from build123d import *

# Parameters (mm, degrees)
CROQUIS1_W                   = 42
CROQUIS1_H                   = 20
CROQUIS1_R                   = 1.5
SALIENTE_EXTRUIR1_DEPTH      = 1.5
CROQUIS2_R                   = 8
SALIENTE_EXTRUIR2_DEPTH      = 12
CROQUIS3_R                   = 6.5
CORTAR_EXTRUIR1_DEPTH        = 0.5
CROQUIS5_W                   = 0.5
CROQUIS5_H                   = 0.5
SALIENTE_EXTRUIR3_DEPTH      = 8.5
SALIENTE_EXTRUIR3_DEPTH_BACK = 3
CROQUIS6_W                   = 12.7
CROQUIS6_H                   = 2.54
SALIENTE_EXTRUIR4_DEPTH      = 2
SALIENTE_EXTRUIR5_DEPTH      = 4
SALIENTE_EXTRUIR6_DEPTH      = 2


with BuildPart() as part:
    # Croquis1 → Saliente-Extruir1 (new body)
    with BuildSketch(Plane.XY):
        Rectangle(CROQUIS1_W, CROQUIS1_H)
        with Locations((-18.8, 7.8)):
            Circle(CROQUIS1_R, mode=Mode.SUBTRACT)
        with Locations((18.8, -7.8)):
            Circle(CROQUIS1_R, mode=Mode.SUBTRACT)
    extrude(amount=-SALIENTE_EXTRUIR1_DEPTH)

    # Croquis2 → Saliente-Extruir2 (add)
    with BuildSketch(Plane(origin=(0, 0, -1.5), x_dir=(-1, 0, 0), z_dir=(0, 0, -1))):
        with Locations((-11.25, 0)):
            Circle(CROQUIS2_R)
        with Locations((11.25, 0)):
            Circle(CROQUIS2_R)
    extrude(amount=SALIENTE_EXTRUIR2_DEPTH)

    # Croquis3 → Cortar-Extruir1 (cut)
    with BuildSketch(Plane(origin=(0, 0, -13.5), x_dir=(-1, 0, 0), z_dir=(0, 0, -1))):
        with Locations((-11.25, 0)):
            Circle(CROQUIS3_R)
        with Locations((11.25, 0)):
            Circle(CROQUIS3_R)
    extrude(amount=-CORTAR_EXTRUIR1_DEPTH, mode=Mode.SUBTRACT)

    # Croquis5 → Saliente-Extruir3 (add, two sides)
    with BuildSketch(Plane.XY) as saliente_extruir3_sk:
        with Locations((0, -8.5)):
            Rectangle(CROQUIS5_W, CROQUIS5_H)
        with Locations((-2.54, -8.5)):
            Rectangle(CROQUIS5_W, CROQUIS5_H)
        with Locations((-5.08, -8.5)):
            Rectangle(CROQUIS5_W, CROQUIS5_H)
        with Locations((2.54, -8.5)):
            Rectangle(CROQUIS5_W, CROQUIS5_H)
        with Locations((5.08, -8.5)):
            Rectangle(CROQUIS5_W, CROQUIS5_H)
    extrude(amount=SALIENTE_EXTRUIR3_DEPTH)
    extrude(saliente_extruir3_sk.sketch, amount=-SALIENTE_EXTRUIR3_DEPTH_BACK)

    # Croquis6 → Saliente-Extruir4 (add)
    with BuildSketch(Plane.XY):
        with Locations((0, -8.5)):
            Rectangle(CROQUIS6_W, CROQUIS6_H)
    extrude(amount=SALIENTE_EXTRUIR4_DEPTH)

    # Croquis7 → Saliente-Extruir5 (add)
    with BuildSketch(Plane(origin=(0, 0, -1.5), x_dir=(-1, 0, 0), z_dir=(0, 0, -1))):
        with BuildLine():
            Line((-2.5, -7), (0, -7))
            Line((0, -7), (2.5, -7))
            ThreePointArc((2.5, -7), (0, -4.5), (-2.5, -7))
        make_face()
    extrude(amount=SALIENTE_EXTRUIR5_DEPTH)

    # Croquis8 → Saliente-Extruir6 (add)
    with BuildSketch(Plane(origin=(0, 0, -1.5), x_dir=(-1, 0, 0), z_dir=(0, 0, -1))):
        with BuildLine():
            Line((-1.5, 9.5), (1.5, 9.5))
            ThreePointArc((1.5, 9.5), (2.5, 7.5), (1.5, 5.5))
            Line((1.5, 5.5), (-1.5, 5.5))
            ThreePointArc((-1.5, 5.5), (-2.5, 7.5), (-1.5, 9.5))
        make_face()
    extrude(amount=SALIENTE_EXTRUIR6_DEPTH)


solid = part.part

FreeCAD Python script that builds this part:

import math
import FreeCAD as App
import Part
import Sketcher
from FreeCAD import Vector
Q = App.Units.Quantity

doc = App.newDocument("Part")
params = doc.addObject("Spreadsheet::Sheet", "Params")
for row, (alias, value) in enumerate([
    ("sketch1_diameter", "3 mm"),
    ("sketch1_width", "42 mm"),
    ("sketch1_height", "20 mm"),
    ("pad1_length", "1.5 mm"),
    ("sketch2_diameter", "16 mm"),
    ("pad2_length", "12 mm"),
    ("sketch3_diameter", "13 mm"),
    ("pocket1_length", "0.5 mm"),
    ("sketch4_width", "0.5 mm"),
    ("pad3_length", "8.5 mm"),
    ("pad3_length2", "3 mm"),
    ("sketch5_width", "12.7 mm"),
    ("sketch5_height", "2.54 mm"),
    ("pad4_length", "2 mm"),
    ("sketch6_radius", "2.5 mm"),
    ("pad5_length", "4 mm"),
    ("sketch7_radius", "2.5 mm"),
    ("sketch7_width", "3 mm"),
    ("pad6_length", "2 mm"),
], start=1):
    params.set(f"A{row}", alias)
    params.set(f"B{row}", "=" + value)
    params.setAlias(f"B{row}", alias)

body = doc.addObject("PartDesign::Body", "Body")

# Sketch on XY plane
sketch1 = body.newObject("Sketcher::SketchObject", "Sketch")
sketch1.AttachmentSupport = (doc.getObject("XY_Plane"), [""])
sketch1.MapMode = "FlatFace"
sketch1.addGeometry([
    Part.LineSegment(Vector(-21, 10, 0), Vector(-21, -10, 0)),  # 0
    Part.LineSegment(Vector(-21, -10, 0), Vector(21, -10, 0)),  # 1
    Part.LineSegment(Vector(21, -10, 0), Vector(21, 10, 0)),  # 2
    Part.LineSegment(Vector(21, 10, 0), Vector(-21, 10, 0)),  # 3
    Part.Circle(Vector(18.8, -7.8, 0), Vector(0, 0, 1), 1.5),  # 4
    Part.Circle(Vector(-18.8, 7.8, 0), Vector(0, 0, 1), 1.5),  # 5
], False)
sketch1.addConstraint([
    Sketcher.Constraint("Coincident", 0, 2, 1, 1),
    Sketcher.Constraint("Coincident", 1, 2, 2, 1),
    Sketcher.Constraint("Coincident", 2, 2, 3, 1),
    Sketcher.Constraint("Coincident", 3, 2, 0, 1),
    Sketcher.Constraint("Vertical", 0),
    Sketcher.Constraint("Horizontal", 1),
    Sketcher.Constraint("Vertical", 2),
    Sketcher.Constraint("Horizontal", 3),
    Sketcher.Constraint("Equal", 4, 5),
    Sketcher.Constraint("Symmetric", 4, 3, 5, 3, -1, 1),
    Sketcher.Constraint("Symmetric", 0, 2, 2, 2, -1, 1),
    Sketcher.Constraint("Diameter", 4, Q("3 mm")),
    Sketcher.Constraint("DistanceX", 1, 1, 1, 2, Q("42 mm")),
    Sketcher.Constraint("DistanceY", 0, 2, 0, 1, Q("20 mm")),
    Sketcher.Constraint("DistanceX", -1, 1, 4, 3, Q("18.8 mm")),
    Sketcher.Constraint("DistanceY", 4, 3, -1, 1, Q("7.8 mm")),
])
sketch1.setExpression("Constraints[11]", "Params.sketch1_diameter")
sketch1.setExpression("Constraints[12]", "Params.sketch1_width")
sketch1.setExpression("Constraints[13]", "Params.sketch1_height")
pad1 = body.newObject("PartDesign::Pad", "Pad")
pad1.Profile = sketch1
pad1.setExpression("Length", "Params.pad1_length")
pad1.Reversed = True

# Sketch on XY plane
sketch2 = body.newObject("Sketcher::SketchObject", "Sketch001")
sketch2.AttachmentSupport = (doc.getObject("XY_Plane"), [""])
sketch2.MapMode = "FlatFace"
sketch2.AttachmentOffset = App.Placement(Vector(0, 0, -1.5), App.Rotation())
sketch2.addGeometry([
    Part.Circle(Vector(11.25, 0, 0), Vector(0, 0, 1), 8),
    Part.Circle(Vector(-11.25, 0, 0), Vector(0, 0, 1), 8),
], False)
sketch2.addConstraint([
    Sketcher.Constraint("Equal", 0, 1),
    Sketcher.Constraint("Symmetric", 0, 3, 1, 3, -1, 1),
    Sketcher.Constraint("PointOnObject", 0, 3, -1),
    Sketcher.Constraint("Diameter", 0, Q("16 mm")),
    Sketcher.Constraint("DistanceX", 1, 3, 0, 3, Q("22.5 mm")),
])
sketch2.setExpression("Constraints[3]", "Params.sketch2_diameter")
pad2 = body.newObject("PartDesign::Pad", "Pad001")
pad2.Profile = sketch2
pad2.setExpression("Length", "Params.pad2_length")
pad2.Reversed = True

# Sketch on XY plane
sketch3 = body.newObject("Sketcher::SketchObject", "Sketch002")
sketch3.AttachmentSupport = (doc.getObject("XY_Plane"), [""])
sketch3.MapMode = "FlatFace"
sketch3.AttachmentOffset = App.Placement(Vector(0, 0, -13.5), App.Rotation())
sketch3.addGeometry([
    Part.Circle(Vector(11.25, 0, 0), Vector(0, 0, 1), 6.5),
    Part.Circle(Vector(-11.25, 0, 0), Vector(0, 0, 1), 6.5),
], False)
sketch3.addConstraint([
    Sketcher.Constraint("Equal", 0, 1),
    Sketcher.Constraint("Symmetric", 0, 3, 1, 3, -1, 1),
    Sketcher.Constraint("PointOnObject", 0, 3, -1),
    Sketcher.Constraint("Diameter", 0, Q("13 mm")),
    Sketcher.Constraint("DistanceX", 1, 3, 0, 3, Q("22.5 mm")),
])
sketch3.setExpression("Constraints[3]", "Params.sketch3_diameter")
pocket1 = body.newObject("PartDesign::Pocket", "Pocket")
pocket1.Profile = sketch3
pocket1.setExpression("Length", "Params.pocket1_length")
pocket1.Reversed = True

# Sketch on XY plane
sketch4 = body.newObject("Sketcher::SketchObject", "Sketch003")
sketch4.AttachmentSupport = (doc.getObject("XY_Plane"), [""])
sketch4.MapMode = "FlatFace"
sketch4.addGeometry([
    Part.LineSegment(Vector(-0.25, -8.25, 0), Vector(-0.25, -8.75, 0)),  # 0
    Part.LineSegment(Vector(-0.25, -8.75, 0), Vector(0.25, -8.75, 0)),  # 1
    Part.LineSegment(Vector(0.25, -8.75, 0), Vector(0.25, -8.25, 0)),  # 2
    Part.LineSegment(Vector(0.25, -8.25, 0), Vector(-0.25, -8.25, 0)),  # 3
    Part.LineSegment(Vector(-2.79, -8.25, 0), Vector(-2.79, -8.75, 0)),  # 4
    Part.LineSegment(Vector(-2.79, -8.75, 0), Vector(-2.29, -8.75, 0)),  # 5
    Part.LineSegment(Vector(-2.29, -8.75, 0), Vector(-2.29, -8.25, 0)),  # 6
    Part.LineSegment(Vector(-2.29, -8.25, 0), Vector(-2.79, -8.25, 0)),  # 7
    Part.LineSegment(Vector(-5.33, -8.25, 0), Vector(-5.33, -8.75, 0)),  # 8
    Part.LineSegment(Vector(-5.33, -8.75, 0), Vector(-4.83, -8.75, 0)),  # 9
    Part.LineSegment(Vector(-4.83, -8.75, 0), Vector(-4.83, -8.25, 0)),  # 10
    Part.LineSegment(Vector(-4.83, -8.25, 0), Vector(-5.33, -8.25, 0)),  # 11
    Part.LineSegment(Vector(2.29, -8.25, 0), Vector(2.29, -8.75, 0)),  # 12
    Part.LineSegment(Vector(2.29, -8.75, 0), Vector(2.79, -8.75, 0)),  # 13
    Part.LineSegment(Vector(2.79, -8.75, 0), Vector(2.79, -8.25, 0)),  # 14
    Part.LineSegment(Vector(2.79, -8.25, 0), Vector(2.29, -8.25, 0)),  # 15
    Part.LineSegment(Vector(4.83, -8.25, 0), Vector(4.83, -8.75, 0)),  # 16
    Part.LineSegment(Vector(4.83, -8.75, 0), Vector(5.33, -8.75, 0)),  # 17
    Part.LineSegment(Vector(5.33, -8.75, 0), Vector(5.33, -8.25, 0)),  # 18
    Part.LineSegment(Vector(5.33, -8.25, 0), Vector(4.83, -8.25, 0)),  # 19
], False)
sketch4.addConstraint([
    Sketcher.Constraint("Coincident", 0, 2, 1, 1),
    Sketcher.Constraint("Coincident", 1, 2, 2, 1),
    Sketcher.Constraint("Coincident", 2, 2, 3, 1),
    Sketcher.Constraint("Coincident", 3, 2, 0, 1),
    Sketcher.Constraint("Coincident", 4, 2, 5, 1),
    Sketcher.Constraint("Coincident", 5, 2, 6, 1),
    Sketcher.Constraint("Coincident", 6, 2, 7, 1),
    Sketcher.Constraint("Coincident", 7, 2, 4, 1),
    Sketcher.Constraint("Coincident", 8, 2, 9, 1),
    Sketcher.Constraint("Coincident", 9, 2, 10, 1),
    Sketcher.Constraint("Coincident", 10, 2, 11, 1),
    Sketcher.Constraint("Coincident", 11, 2, 8, 1),
    Sketcher.Constraint("Coincident", 12, 2, 13, 1),
    Sketcher.Constraint("Coincident", 13, 2, 14, 1),
    Sketcher.Constraint("Coincident", 14, 2, 15, 1),
    Sketcher.Constraint("Coincident", 15, 2, 12, 1),
    Sketcher.Constraint("Coincident", 16, 2, 17, 1),
    Sketcher.Constraint("Coincident", 17, 2, 18, 1),
    Sketcher.Constraint("Coincident", 18, 2, 19, 1),
    Sketcher.Constraint("Coincident", 19, 2, 16, 1),
    Sketcher.Constraint("Vertical", 0),
    Sketcher.Constraint("Horizontal", 1),
    Sketcher.Constraint("Vertical", 2),
    Sketcher.Constraint("Horizontal", 3),
    Sketcher.Constraint("Vertical", 4),
    Sketcher.Constraint("Horizontal", 5),
    Sketcher.Constraint("Vertical", 6),
    Sketcher.Constraint("Horizontal", 7),
    Sketcher.Constraint("Vertical", 8),
    Sketcher.Constraint("Horizontal", 9),
    Sketcher.Constraint("Vertical", 10),
    Sketcher.Constraint("Horizontal", 11),
    Sketcher.Constraint("Vertical", 12),
    Sketcher.Constraint("Horizontal", 13),
    Sketcher.Constraint("Vertical", 14),
    Sketcher.Constraint("Horizontal", 15),
    Sketcher.Constraint("Vertical", 16),
    Sketcher.Constraint("Horizontal", 17),
    Sketcher.Constraint("Vertical", 18),
    Sketcher.Constraint("Horizontal", 19),
    Sketcher.Constraint("Symmetric", 5, 2, 12, 2, -2),
    Sketcher.Constraint("Symmetric", 7, 2, 14, 2, -2),
    Sketcher.Constraint("Symmetric", 9, 2, 16, 2, -2),
    Sketcher.Constraint("Symmetric", 11, 2, 18, 2, -2),
    Sketcher.Constraint("Horizontal", 1, 2, 4, 2),
    Sketcher.Constraint("Horizontal", 3, 2, 6, 2),
    Sketcher.Constraint("Horizontal", 5, 2, 8, 2),
    Sketcher.Constraint("Horizontal", 7, 2, 10, 2),
    Sketcher.Constraint("Equal", 3, 5),
    Sketcher.Constraint("Equal", 7, 9),
    Sketcher.Constraint("Equal", 19, 0),
    Sketcher.Constraint("DistanceX", 1, 1, 1, 2, Q("0.5 mm")),
    Sketcher.Constraint("DistanceX", 0, 2, -1, 1, Q("0.25 mm")),
    Sketcher.Constraint("DistanceY", 0, 2, -1, 1, Q("8.75 mm")),
    Sketcher.Constraint("DistanceX", 4, 2, -1, 1, Q("2.79 mm")),
    Sketcher.Constraint("DistanceX", 8, 2, -1, 1, Q("5.33 mm")),
])
sketch4.setExpression("Constraints[51]", "Params.sketch4_width")
pad3 = body.newObject("PartDesign::Pad", "Pad002")
pad3.Profile = sketch4
pad3.Type = "TwoLengths"
pad3.setExpression("Length", "Params.pad3_length")
pad3.setExpression("Length2", "Params.pad3_length2")

# Sketch on XY plane
sketch5 = body.newObject("Sketcher::SketchObject", "Sketch004")
sketch5.AttachmentSupport = (doc.getObject("XY_Plane"), [""])
sketch5.MapMode = "FlatFace"
sketch5.addGeometry([
    Part.LineSegment(Vector(-6.35, -7.23, 0), Vector(-6.35, -9.77, 0)),
    Part.LineSegment(Vector(-6.35, -9.77, 0), Vector(6.35, -9.77, 0)),
    Part.LineSegment(Vector(6.35, -9.77, 0), Vector(6.35, -7.23, 0)),
    Part.LineSegment(Vector(6.35, -7.23, 0), Vector(-6.35, -7.23, 0)),
], False)
sketch5.addConstraint([
    Sketcher.Constraint("Coincident", 0, 2, 1, 1),
    Sketcher.Constraint("Coincident", 1, 2, 2, 1),
    Sketcher.Constraint("Coincident", 2, 2, 3, 1),
    Sketcher.Constraint("Coincident", 3, 2, 0, 1),
    Sketcher.Constraint("Vertical", 0),
    Sketcher.Constraint("Horizontal", 1),
    Sketcher.Constraint("Vertical", 2),
    Sketcher.Constraint("Horizontal", 3),
    Sketcher.Constraint("DistanceX", 1, 1, 1, 2, Q("12.7 mm")),
    Sketcher.Constraint("DistanceY", 0, 2, 0, 1, Q("2.54 mm")),
    Sketcher.Constraint("DistanceX", 0, 2, -1, 1, Q("6.35 mm")),
    Sketcher.Constraint("DistanceY", 0, 2, -1, 1, Q("9.77 mm")),
])
sketch5.setExpression("Constraints[8]", "Params.sketch5_width")
sketch5.setExpression("Constraints[9]", "Params.sketch5_height")
pad4 = body.newObject("PartDesign::Pad", "Pad003")
pad4.Profile = sketch5
pad4.setExpression("Length", "Params.pad4_length")

# Sketch on XY plane
sketch6 = body.newObject("Sketcher::SketchObject", "Sketch005")
sketch6.AttachmentSupport = (doc.getObject("XY_Plane"), [""])
sketch6.MapMode = "FlatFace"
sketch6.AttachmentOffset = App.Placement(Vector(0, 0, -1.5), App.Rotation())
sketch6.addGeometry([
    Part.LineSegment(Vector(2.5, -7, 0), Vector(-2.5, -7, 0)),
    Part.ArcOfCircle(Part.Circle(Vector(0, -7, 0), Vector(0, 0, 1), 2.5), math.radians(0), math.radians(180)),
], False)
sketch6.addConstraint([
    Sketcher.Constraint("Coincident", 0, 1, 1, 1),
    Sketcher.Constraint("Coincident", 1, 2, 0, 2),
    Sketcher.Constraint("Horizontal", 0),
    Sketcher.Constraint("PointOnObject", 1, 3, -2),
    Sketcher.Constraint("Horizontal", 1, 3, 0, 1),
    Sketcher.Constraint("Radius", 1, Q("2.5 mm")),
    Sketcher.Constraint("DistanceY", 1, 3, -1, 1, Q("7 mm")),
])
sketch6.setExpression("Constraints[5]", "Params.sketch6_radius")
pad5 = body.newObject("PartDesign::Pad", "Pad004")
pad5.Profile = sketch6
pad5.setExpression("Length", "Params.pad5_length")
pad5.Reversed = True

# Sketch on XY plane
sketch7 = body.newObject("Sketcher::SketchObject", "Sketch006")
sketch7.AttachmentSupport = (doc.getObject("XY_Plane"), [""])
sketch7.MapMode = "FlatFace"
sketch7.AttachmentOffset = App.Placement(Vector(0, 0, -1.5), App.Rotation())
sketch7.addGeometry([
    Part.LineSegment(Vector(-1.5, 9.5, 0), Vector(1.5, 9.5, 0)),
    Part.ArcOfCircle(Part.Circle(Vector(0, 7.5, 0), Vector(0, 0, 1), 2.5), math.radians(-53.130102), math.radians(53.130102)),
    Part.LineSegment(Vector(1.5, 5.5, 0), Vector(-1.5, 5.5, 0)),
    Part.ArcOfCircle(Part.Circle(Vector(0, 7.5, 0), Vector(0, 0, 1), 2.5), math.radians(126.869898), math.radians(233.130102)),
], False)
sketch7.addConstraint([
    Sketcher.Constraint("Coincident", 0, 2, 1, 2),
    Sketcher.Constraint("Coincident", 1, 1, 2, 1),
    Sketcher.Constraint("Coincident", 2, 2, 3, 2),
    Sketcher.Constraint("Coincident", 3, 1, 0, 1),
    Sketcher.Constraint("Horizontal", 0),
    Sketcher.Constraint("Horizontal", 2),
    Sketcher.Constraint("Coincident", 3, 3, 1, 3),
    Sketcher.Constraint("Equal", 1, 3),
    Sketcher.Constraint("PointOnObject", 1, 3, -2),
    Sketcher.Constraint("Vertical", 0, 2, 1, 1),
    Sketcher.Constraint("Radius", 1, Q("2.5 mm")),
    Sketcher.Constraint("DistanceX", 0, 1, 0, 2, Q("3 mm")),
    Sketcher.Constraint("DistanceY", -1, 1, 1, 3, Q("7.5 mm")),
])
sketch7.setExpression("Constraints[10]", "Params.sketch7_radius")
sketch7.setExpression("Constraints[11]", "Params.sketch7_width")
pad6 = body.newObject("PartDesign::Pad", "Pad005")
pad6.Profile = sketch7
pad6.setExpression("Length", "Params.pad6_length")
pad6.Reversed = True

doc.recompute()
